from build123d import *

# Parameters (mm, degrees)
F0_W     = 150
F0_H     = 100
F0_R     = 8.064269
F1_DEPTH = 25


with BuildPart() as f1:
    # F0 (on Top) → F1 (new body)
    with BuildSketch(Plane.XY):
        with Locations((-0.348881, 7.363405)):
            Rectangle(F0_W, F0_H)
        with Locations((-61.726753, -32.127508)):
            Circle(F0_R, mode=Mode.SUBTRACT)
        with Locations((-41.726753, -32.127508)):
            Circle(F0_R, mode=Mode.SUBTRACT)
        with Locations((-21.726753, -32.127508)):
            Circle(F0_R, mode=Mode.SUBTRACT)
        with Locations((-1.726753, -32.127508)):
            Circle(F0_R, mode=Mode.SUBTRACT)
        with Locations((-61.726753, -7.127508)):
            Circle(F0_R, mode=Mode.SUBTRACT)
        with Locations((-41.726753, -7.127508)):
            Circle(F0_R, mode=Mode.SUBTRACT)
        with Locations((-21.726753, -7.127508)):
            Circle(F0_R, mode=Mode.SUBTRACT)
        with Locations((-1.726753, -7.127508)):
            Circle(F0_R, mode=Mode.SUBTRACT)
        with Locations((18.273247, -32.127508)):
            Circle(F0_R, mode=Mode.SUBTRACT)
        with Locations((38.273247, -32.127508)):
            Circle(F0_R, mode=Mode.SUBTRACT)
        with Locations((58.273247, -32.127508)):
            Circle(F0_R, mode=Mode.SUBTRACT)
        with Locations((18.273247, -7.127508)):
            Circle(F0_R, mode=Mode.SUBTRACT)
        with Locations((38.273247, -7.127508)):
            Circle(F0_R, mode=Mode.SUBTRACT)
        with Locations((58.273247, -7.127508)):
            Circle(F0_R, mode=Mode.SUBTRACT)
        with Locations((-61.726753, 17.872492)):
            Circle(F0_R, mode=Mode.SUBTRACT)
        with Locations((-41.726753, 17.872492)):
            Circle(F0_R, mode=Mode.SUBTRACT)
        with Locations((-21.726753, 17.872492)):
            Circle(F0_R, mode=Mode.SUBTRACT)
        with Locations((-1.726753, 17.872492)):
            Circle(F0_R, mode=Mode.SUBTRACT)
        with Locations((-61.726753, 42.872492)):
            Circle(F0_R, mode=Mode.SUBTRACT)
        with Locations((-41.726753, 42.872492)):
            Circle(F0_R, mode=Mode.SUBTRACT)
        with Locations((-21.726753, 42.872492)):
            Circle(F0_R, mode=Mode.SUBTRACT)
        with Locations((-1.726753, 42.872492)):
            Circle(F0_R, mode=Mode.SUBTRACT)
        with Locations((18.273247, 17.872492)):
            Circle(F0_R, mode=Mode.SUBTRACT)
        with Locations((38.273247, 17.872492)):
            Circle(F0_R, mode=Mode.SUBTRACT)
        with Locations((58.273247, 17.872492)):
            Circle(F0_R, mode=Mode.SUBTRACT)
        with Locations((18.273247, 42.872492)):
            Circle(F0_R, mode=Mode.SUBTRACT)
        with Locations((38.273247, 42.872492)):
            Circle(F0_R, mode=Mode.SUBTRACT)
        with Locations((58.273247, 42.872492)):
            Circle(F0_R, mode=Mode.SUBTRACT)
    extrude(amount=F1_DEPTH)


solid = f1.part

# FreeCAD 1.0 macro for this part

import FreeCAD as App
import Part
import Sketcher


def add_polygon(sketch, points):
    """Adds a closed chain of lines whose ends are joined by coincident constraints."""
    first, n = sketch.GeometryCount, len(points)
    for a, b in zip(points, points[1:] + points[:1]):
        sketch.addGeometry(Part.LineSegment(App.Vector(*a, 0), App.Vector(*b, 0)), False)
    for i in range(n):
        sketch.addConstraint(Sketcher.Constraint("Coincident", first + i, 2, first + (i + 1) % n, 1))

doc = App.newDocument("Part")
body = doc.addObject("PartDesign::Body", "Body")

# Sketch on XY plane
sketch1 = doc.addObject("Sketcher::SketchObject", "Sketch")
body.addObject(sketch1)
sketch1.AttachmentSupport = (doc.XY_Plane, [""])
sketch1.MapMode = "FlatFace"
add_polygon(sketch1, [(-75, 57), (-75, -43), (75, -43), (75, 57)])  # lines 0-3
sketch1.addGeometry(Part.Circle(App.Vector(-62, -32, 0), App.Vector(0, 0, 1), 8), False)  # 4
sketch1.addGeometry(Part.Circle(App.Vector(-42, -32, 0), App.Vector(0, 0, 1), 8), False)  # 5
sketch1.addGeometry(Part.Circle(App.Vector(-22, -32, 0), App.Vector(0, 0, 1), 8), False)  # 6
sketch1.addGeometry(Part.Circle(App.Vector(-62, -7, 0), App.Vector(0, 0, 1), 8), False)  # 7
sketch1.addGeometry(Part.Circle(App.Vector(-42, -7, 0), App.Vector(0, 0, 1), 8), False)  # 8
sketch1.addGeometry(Part.Circle(App.Vector(-22, -7, 0), App.Vector(0, 0, 1), 8), False)  # 9
sketch1.addGeometry(Part.Circle(App.Vector(-2, -32, 0), App.Vector(0, 0, 1), 8), False)  # 10
sketch1.addGeometry(Part.Circle(App.Vector(18, -32, 0), App.Vector(0, 0, 1), 8), False)  # 11
sketch1.addGeometry(Part.Circle(App.Vector(38, -32, 0), App.Vector(0, 0, 1), 8), False)  # 12
sketch1.addGeometry(Part.Circle(App.Vector(58, -32, 0), App.Vector(0, 0, 1), 8), False)  # 13
sketch1.addGeometry(Part.Circle(App.Vector(-2, -7, 0), App.Vector(0, 0, 1), 8), False)  # 14
sketch1.addGeometry(Part.Circle(App.Vector(18, -7, 0), App.Vector(0, 0, 1), 8), False)  # 15
sketch1.addGeometry(Part.Circle(App.Vector(38, -7, 0), App.Vector(0, 0, 1), 8), False)  # 16
sketch1.addGeometry(Part.Circle(App.Vector(58, -7, 0), App.Vector(0, 0, 1), 8), False)  # 17
sketch1.addGeometry(Part.Circle(App.Vector(-62, 18, 0), App.Vector(0, 0, 1), 8), False)  # 18
sketch1.addGeometry(Part.Circle(App.Vector(-42, 18, 0), App.Vector(0, 0, 1), 8), False)  # 19
sketch1.addGeometry(Part.Circle(App.Vector(-22, 18, 0), App.Vector(0, 0, 1), 8), False)  # 20
sketch1.addGeometry(Part.Circle(App.Vector(-62, 43, 0), App.Vector(0, 0, 1), 8), False)  # 21
sketch1.addGeometry(Part.Circle(App.Vector(-42, 43, 0), App.Vector(0, 0, 1), 8), False)  # 22
sketch1.addGeometry(Part.Circle(App.Vector(-22, 43, 0), App.Vector(0, 0, 1), 8), False)  # 23
sketch1.addGeometry(Part.Circle(App.Vector(-2, 18, 0), App.Vector(0, 0, 1), 8), False)  # 24
sketch1.addGeometry(Part.Circle(App.Vector(18, 18, 0), App.Vector(0, 0, 1), 8), False)  # 25
sketch1.addGeometry(Part.Circle(App.Vector(38, 18, 0), App.Vector(0, 0, 1), 8), False)  # 26
sketch1.addGeometry(Part.Circle(App.Vector(58, 18, 0), App.Vector(0, 0, 1), 8), False)  # 27
sketch1.addGeometry(Part.Circle(App.Vector(-2, 43, 0), App.Vector(0, 0, 1), 8), False)  # 28
sketch1.addGeometry(Part.Circle(App.Vector(18, 43, 0), App.Vector(0, 0, 1), 8), False)  # 29
sketch1.addGeometry(Part.Circle(App.Vector(38, 43, 0), App.Vector(0, 0, 1), 8), False)  # 30
sketch1.addGeometry(Part.Circle(App.Vector(58, 43, 0), App.Vector(0, 0, 1), 8), False)  # 31
sketch1.addConstraint(Sketcher.Constraint("Vertical", 0))
sketch1.addConstraint(Sketcher.Constraint("Horizontal", 1))
sketch1.addConstraint(Sketcher.Constraint("Vertical", 2))
sketch1.addConstraint(Sketcher.Constraint("Horizontal", 3))
sketch1.addConstraint(Sketcher.Constraint("Equal", 4, 5))
sketch1.addConstraint(Sketcher.Constraint("Equal", 5, 6))
sketch1.addConstraint(Sketcher.Constraint("Equal", 6, 7))
sketch1.addConstraint(Sketcher.Constraint("Equal", 7, 8))
sketch1.addConstraint(Sketcher.Constraint("Equal", 8, 9))
sketch1.addConstraint(Sketcher.Constraint("Equal", 9, 10))
sketch1.addConstraint(Sketcher.Constraint("Equal", 10, 11))
sketch1.addConstraint(Sketcher.Constraint("Equal", 11, 12))
sketch1.addConstraint(Sketcher.Constraint("Equal", 12, 13))
sketch1.addConstraint(Sketcher.Constraint("Equal", 13, 14))
sketch1.addConstraint(Sketcher.Constraint("Equal", 14, 15))
sketch1.addConstraint(Sketcher.Constraint("Equal", 15, 16))
sketch1.addConstraint(Sketcher.Constraint("Equal", 16, 17))
sketch1.addConstraint(Sketcher.Constraint("Equal", 17, 18))
sketch1.addConstraint(Sketcher.Constraint("Equal", 18, 19))
sketch1.addConstraint(Sketcher.Constraint("Equal", 19, 20))
sketch1.addConstraint(Sketcher.Constraint("Equal", 20, 21))
sketch1.addConstraint(Sketcher.Constraint("Equal", 21, 22))
sketch1.addConstraint(Sketcher.Constraint("Equal", 22, 23))
sketch1.addConstraint(Sketcher.Constraint("Equal", 23, 24))
sketch1.addConstraint(Sketcher.Constraint("Equal", 24, 25))
sketch1.addConstraint(Sketcher.Constraint("Equal", 25, 26))
sketch1.addConstraint(Sketcher.Constraint("Equal", 26, 27))
sketch1.addConstraint(Sketcher.Constraint("Equal", 27, 28))
sketch1.addConstraint(Sketcher.Constraint("Equal", 28, 29))
sketch1.addConstraint(Sketcher.Constraint("Equal", 29, 30))
sketch1.addConstraint(Sketcher.Constraint("Equal", 30, 31))
sketch1.addConstraint(Sketcher.Constraint("Horizontal", 4, 3, 5, 3))
sketch1.addConstraint(Sketcher.Constraint("Horizontal", 5, 3, 6, 3))
sketch1.addConstraint(Sketcher.Constraint("Horizontal", 7, 3, 8, 3))
sketch1.addConstraint(Sketcher.Constraint("Horizontal", 8, 3, 9, 3))
sketch1.addConstraint(Sketcher.Constraint("Horizontal", 6, 3, 10, 3))
sketch1.addConstraint(Sketcher.Constraint("Horizontal", 10, 3, 11, 3))
sketch1.addConstraint(Sketcher.Constraint("Horizontal", 11, 3, 12, 3))
sketch1.addConstraint(Sketcher.Constraint("Horizontal", 12, 3, 13, 3))
sketch1.addConstraint(Sketcher.Constraint("Horizontal", 9, 3, 14, 3))
sketch1.addConstraint(Sketcher.Constraint("Horizontal", 14, 3, 15, 3))
sketch1.addConstraint(Sketcher.Constraint("Horizontal", 15, 3, 16, 3))
sketch1.addConstraint(Sketcher.Constraint("Horizontal", 16, 3, 17, 3))
sketch1.addConstraint(Sketcher.Constraint("Horizontal", 18, 3, 19, 3))
sketch1.addConstraint(Sketcher.Constraint("Horizontal", 19, 3, 20, 3))
sketch1.addConstraint(Sketcher.Constraint("Horizontal", 21, 3, 22, 3))
sketch1.addConstraint(Sketcher.Constraint("Horizontal", 22, 3, 23, 3))
sketch1.addConstraint(Sketcher.Constraint("Horizontal", 20, 3, 24, 3))
sketch1.addConstraint(Sketcher.Constraint("Horizontal", 24, 3, 25, 3))
sketch1.addConstraint(Sketcher.Constraint("Horizontal", 25, 3, 26, 3))
sketch1.addConstraint(Sketcher.Constraint("Horizontal", 26, 3, 27, 3))
sketch1.addConstraint(Sketcher.Constraint("Horizontal", 23, 3, 28, 3))
sketch1.addConstraint(Sketcher.Constraint("Horizontal", 28, 3, 29, 3))
sketch1.addConstraint(Sketcher.Constraint("Horizontal", 29, 3, 30, 3))
sketch1.addConstraint(Sketcher.Constraint("Horizontal", 30, 3, 31, 3))
sketch1.addConstraint(Sketcher.Constraint("Vertical", 4, 3, 7, 3))
sketch1.addConstraint(Sketcher.Constraint("Vertical", 5, 3, 8, 3))
sketch1.addConstraint(Sketcher.Constraint("Vertical", 6, 3, 9, 3))
sketch1.addConstraint(Sketcher.Constraint("Vertical", 10, 3, 14, 3))
sketch1.addConstraint(Sketcher.Constraint("Vertical", 11, 3, 15, 3))
sketch1.addConstraint(Sketcher.Constraint("Vertical", 12, 3, 16, 3))
sketch1.addConstraint(Sketcher.Constraint("Vertical", 13, 3, 17, 3))
sketch1.addConstraint(Sketcher.Constraint("Vertical", 7, 3, 18, 3))
sketch1.addConstraint(Sketcher.Constraint("Vertical", 8, 3, 19, 3))
sketch1.addConstraint(Sketcher.Constraint("Vertical", 9, 3, 20, 3))
sketch1.addConstraint(Sketcher.Constraint("Vertical", 18, 3, 21, 3))
sketch1.addConstraint(Sketcher.Constraint("Vertical", 19, 3, 22, 3))
sketch1.addConstraint(Sketcher.Constraint("Vertical", 20, 3, 23, 3))
sketch1.addConstraint(Sketcher.Constraint("Vertical", 14, 3, 24, 3))
sketch1.addConstraint(Sketcher.Constraint("Vertical", 15, 3, 25, 3))
sketch1.addConstraint(Sketcher.Constraint("Vertical", 16, 3, 26, 3))
sketch1.addConstraint(Sketcher.Constraint("Vertical", 17, 3, 27, 3))
sketch1.addConstraint(Sketcher.Constraint("Vertical", 24, 3, 28, 3))
sketch1.addConstraint(Sketcher.Constraint("Vertical", 25, 3, 29, 3))
sketch1.addConstraint(Sketcher.Constraint("Vertical", 26, 3, 30, 3))
sketch1.addConstraint(Sketcher.Constraint("Vertical", 27, 3, 31, 3))
sketch1.addConstraint(Sketcher.Constraint("DistanceX", 1, 1, 1, 2, 150.0))
sketch1.addConstraint(Sketcher.Constraint("DistanceY", 0, 2, 0, 1, 100.0))
sketch1.addConstraint(Sketcher.Constraint("DistanceX", 4, 3, 5, 3, 20.0))
sketch1.addConstraint(Sketcher.Constraint("DistanceX", 5, 3, 6, 3, 20.0))
sketch1.addConstraint(Sketcher.Constraint("DistanceY", 4, 3, 7, 3, 25.0))
sketch1.addConstraint(Sketcher.Constraint("DistanceX", 6, 3, 10, 3, 20.0))
sketch1.addConstraint(Sketcher.Constraint("DistanceX", 10, 3, 11, 3, 20.0))
sketch1.addConstraint(Sketcher.Constraint("DistanceX", 11, 3, 12, 3, 20.0))
sketch1.addConstraint(Sketcher.Constraint("DistanceX", 12, 3, 13, 3, 20.0))
sketch1.addConstraint(Sketcher.Constraint("DistanceY", 7, 3, 18, 3, 25.0))
sketch1.addConstraint(Sketcher.Constraint("DistanceY", 18, 3, 21, 3, 25.0))
sketch1.addConstraint(Sketcher.Constraint("Diameter", 4, 16.128538))
sketch1.addConstraint(Sketcher.Constraint("DistanceX", 0, 2, -1, 1, 75.348881))
sketch1.addConstraint(Sketcher.Constraint("DistanceX", 0, 2, 4, 3, 13.622128))
sketch1.addConstraint(Sketcher.Constraint("DistanceY", 4, 3, -1, 1, 32.127508))
sketch1.addConstraint(Sketcher.Constraint("DistanceY", 0, 2, -1, 1, 42.636595))
pad1 = doc.addObject("PartDesign::Pad", "Pad")
body.addObject(pad1)
pad1.Profile = sketch1
pad1.Length = 25

doc.recompute()
